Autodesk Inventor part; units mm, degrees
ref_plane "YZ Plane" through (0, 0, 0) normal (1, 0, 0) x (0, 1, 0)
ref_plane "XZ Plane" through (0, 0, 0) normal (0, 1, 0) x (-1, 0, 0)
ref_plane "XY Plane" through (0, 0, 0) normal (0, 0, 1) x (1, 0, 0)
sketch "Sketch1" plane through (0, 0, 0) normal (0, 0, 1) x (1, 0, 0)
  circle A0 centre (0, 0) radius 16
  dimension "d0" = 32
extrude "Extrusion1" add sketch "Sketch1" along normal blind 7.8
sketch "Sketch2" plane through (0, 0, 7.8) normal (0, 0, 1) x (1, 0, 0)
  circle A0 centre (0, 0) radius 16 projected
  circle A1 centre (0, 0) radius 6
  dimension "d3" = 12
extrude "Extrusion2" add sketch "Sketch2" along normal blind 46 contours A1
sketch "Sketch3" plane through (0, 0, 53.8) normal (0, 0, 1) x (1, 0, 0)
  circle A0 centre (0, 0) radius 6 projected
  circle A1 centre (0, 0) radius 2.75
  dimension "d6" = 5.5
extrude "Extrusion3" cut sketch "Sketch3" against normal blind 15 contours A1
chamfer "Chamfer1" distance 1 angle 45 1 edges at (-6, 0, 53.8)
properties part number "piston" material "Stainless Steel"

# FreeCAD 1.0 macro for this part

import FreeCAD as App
import Part
import Sketcher

V = App.Vector
Q = App.Units.Quantity


def edges_at(feature, points):
    """Names of the edges that pass closest to the given points."""
    edges = feature.Shape.Edges
    near = lambda p: min(range(len(edges)), key=lambda i: edges[i].distToShape(Part.Vertex(*p))[0])
    return sorted({f"Edge{near(p) + 1}" for p in points})

doc = App.newDocument("Part")
body = doc.addObject("PartDesign::Body", "Body")

# Sketch on XY plane
sketch1 = body.newObject("Sketcher::SketchObject", "Sketch")
sketch1.AttachmentSupport = (doc.getObject("XY_Plane"), [""])
sketch1.MapMode = "FlatFace"
sketch1.addGeometry(Part.Circle(V(0, 0, 0), V(0, 0, 1), 16), False)
sketch1.addConstraint([
    Sketcher.Constraint("Coincident", 0, 3, -1, 1),
    Sketcher.Constraint("Diameter", 0, Q("32 mm")),
])
pad1 = body.newObject("PartDesign::Pad", "Pad")
pad1.Profile = sketch1
pad1.Length = 7.8

# Sketch on XY plane
sketch2 = body.newObject("Sketcher::SketchObject", "Sketch001")
sketch2.AttachmentSupport = (doc.getObject("XY_Plane"), [""])
sketch2.MapMode = "FlatFace"
sketch2.AttachmentOffset = App.Placement(V(0, 0, 7.8), App.Rotation())
sketch2.addGeometry(Part.Circle(V(0, 0, 0), V(0, 0, 1), 6), False)
sketch2.addConstraint([
    Sketcher.Constraint("Coincident", 0, 3, -1, 1),
    Sketcher.Constraint("Diameter", 0, Q("12 mm")),
])
pad2 = body.newObject("PartDesign::Pad", "Pad001")
pad2.Profile = sketch2
pad2.Length = 46

# Sketch on XY plane
sketch3 = body.newObject("Sketcher::SketchObject", "Sketch002")
sketch3.AttachmentSupport = (doc.getObject("XY_Plane"), [""])
sketch3.MapMode = "FlatFace"
sketch3.AttachmentOffset = App.Placement(V(0, 0, 53.8), App.Rotation())
sketch3.addGeometry(Part.Circle(V(0, 0, 0), V(0, 0, 1), 2.8), False)
sketch3.addConstraint([
    Sketcher.Constraint("Coincident", 0, 3, -1, 1),
    Sketcher.Constraint("Diameter", 0, Q("5.5 mm")),
])
pocket1 = body.newObject("PartDesign::Pocket", "Pocket")
pocket1.Profile = sketch3
pocket1.Length = 15
doc.recompute()

chamfer = body.newObject("PartDesign::Chamfer", "Chamfer")
chamfer.Base = (pocket1, edges_at(pocket1, [(-6, 0, 53.8)]))
chamfer.Size = 1

doc.recompute()
